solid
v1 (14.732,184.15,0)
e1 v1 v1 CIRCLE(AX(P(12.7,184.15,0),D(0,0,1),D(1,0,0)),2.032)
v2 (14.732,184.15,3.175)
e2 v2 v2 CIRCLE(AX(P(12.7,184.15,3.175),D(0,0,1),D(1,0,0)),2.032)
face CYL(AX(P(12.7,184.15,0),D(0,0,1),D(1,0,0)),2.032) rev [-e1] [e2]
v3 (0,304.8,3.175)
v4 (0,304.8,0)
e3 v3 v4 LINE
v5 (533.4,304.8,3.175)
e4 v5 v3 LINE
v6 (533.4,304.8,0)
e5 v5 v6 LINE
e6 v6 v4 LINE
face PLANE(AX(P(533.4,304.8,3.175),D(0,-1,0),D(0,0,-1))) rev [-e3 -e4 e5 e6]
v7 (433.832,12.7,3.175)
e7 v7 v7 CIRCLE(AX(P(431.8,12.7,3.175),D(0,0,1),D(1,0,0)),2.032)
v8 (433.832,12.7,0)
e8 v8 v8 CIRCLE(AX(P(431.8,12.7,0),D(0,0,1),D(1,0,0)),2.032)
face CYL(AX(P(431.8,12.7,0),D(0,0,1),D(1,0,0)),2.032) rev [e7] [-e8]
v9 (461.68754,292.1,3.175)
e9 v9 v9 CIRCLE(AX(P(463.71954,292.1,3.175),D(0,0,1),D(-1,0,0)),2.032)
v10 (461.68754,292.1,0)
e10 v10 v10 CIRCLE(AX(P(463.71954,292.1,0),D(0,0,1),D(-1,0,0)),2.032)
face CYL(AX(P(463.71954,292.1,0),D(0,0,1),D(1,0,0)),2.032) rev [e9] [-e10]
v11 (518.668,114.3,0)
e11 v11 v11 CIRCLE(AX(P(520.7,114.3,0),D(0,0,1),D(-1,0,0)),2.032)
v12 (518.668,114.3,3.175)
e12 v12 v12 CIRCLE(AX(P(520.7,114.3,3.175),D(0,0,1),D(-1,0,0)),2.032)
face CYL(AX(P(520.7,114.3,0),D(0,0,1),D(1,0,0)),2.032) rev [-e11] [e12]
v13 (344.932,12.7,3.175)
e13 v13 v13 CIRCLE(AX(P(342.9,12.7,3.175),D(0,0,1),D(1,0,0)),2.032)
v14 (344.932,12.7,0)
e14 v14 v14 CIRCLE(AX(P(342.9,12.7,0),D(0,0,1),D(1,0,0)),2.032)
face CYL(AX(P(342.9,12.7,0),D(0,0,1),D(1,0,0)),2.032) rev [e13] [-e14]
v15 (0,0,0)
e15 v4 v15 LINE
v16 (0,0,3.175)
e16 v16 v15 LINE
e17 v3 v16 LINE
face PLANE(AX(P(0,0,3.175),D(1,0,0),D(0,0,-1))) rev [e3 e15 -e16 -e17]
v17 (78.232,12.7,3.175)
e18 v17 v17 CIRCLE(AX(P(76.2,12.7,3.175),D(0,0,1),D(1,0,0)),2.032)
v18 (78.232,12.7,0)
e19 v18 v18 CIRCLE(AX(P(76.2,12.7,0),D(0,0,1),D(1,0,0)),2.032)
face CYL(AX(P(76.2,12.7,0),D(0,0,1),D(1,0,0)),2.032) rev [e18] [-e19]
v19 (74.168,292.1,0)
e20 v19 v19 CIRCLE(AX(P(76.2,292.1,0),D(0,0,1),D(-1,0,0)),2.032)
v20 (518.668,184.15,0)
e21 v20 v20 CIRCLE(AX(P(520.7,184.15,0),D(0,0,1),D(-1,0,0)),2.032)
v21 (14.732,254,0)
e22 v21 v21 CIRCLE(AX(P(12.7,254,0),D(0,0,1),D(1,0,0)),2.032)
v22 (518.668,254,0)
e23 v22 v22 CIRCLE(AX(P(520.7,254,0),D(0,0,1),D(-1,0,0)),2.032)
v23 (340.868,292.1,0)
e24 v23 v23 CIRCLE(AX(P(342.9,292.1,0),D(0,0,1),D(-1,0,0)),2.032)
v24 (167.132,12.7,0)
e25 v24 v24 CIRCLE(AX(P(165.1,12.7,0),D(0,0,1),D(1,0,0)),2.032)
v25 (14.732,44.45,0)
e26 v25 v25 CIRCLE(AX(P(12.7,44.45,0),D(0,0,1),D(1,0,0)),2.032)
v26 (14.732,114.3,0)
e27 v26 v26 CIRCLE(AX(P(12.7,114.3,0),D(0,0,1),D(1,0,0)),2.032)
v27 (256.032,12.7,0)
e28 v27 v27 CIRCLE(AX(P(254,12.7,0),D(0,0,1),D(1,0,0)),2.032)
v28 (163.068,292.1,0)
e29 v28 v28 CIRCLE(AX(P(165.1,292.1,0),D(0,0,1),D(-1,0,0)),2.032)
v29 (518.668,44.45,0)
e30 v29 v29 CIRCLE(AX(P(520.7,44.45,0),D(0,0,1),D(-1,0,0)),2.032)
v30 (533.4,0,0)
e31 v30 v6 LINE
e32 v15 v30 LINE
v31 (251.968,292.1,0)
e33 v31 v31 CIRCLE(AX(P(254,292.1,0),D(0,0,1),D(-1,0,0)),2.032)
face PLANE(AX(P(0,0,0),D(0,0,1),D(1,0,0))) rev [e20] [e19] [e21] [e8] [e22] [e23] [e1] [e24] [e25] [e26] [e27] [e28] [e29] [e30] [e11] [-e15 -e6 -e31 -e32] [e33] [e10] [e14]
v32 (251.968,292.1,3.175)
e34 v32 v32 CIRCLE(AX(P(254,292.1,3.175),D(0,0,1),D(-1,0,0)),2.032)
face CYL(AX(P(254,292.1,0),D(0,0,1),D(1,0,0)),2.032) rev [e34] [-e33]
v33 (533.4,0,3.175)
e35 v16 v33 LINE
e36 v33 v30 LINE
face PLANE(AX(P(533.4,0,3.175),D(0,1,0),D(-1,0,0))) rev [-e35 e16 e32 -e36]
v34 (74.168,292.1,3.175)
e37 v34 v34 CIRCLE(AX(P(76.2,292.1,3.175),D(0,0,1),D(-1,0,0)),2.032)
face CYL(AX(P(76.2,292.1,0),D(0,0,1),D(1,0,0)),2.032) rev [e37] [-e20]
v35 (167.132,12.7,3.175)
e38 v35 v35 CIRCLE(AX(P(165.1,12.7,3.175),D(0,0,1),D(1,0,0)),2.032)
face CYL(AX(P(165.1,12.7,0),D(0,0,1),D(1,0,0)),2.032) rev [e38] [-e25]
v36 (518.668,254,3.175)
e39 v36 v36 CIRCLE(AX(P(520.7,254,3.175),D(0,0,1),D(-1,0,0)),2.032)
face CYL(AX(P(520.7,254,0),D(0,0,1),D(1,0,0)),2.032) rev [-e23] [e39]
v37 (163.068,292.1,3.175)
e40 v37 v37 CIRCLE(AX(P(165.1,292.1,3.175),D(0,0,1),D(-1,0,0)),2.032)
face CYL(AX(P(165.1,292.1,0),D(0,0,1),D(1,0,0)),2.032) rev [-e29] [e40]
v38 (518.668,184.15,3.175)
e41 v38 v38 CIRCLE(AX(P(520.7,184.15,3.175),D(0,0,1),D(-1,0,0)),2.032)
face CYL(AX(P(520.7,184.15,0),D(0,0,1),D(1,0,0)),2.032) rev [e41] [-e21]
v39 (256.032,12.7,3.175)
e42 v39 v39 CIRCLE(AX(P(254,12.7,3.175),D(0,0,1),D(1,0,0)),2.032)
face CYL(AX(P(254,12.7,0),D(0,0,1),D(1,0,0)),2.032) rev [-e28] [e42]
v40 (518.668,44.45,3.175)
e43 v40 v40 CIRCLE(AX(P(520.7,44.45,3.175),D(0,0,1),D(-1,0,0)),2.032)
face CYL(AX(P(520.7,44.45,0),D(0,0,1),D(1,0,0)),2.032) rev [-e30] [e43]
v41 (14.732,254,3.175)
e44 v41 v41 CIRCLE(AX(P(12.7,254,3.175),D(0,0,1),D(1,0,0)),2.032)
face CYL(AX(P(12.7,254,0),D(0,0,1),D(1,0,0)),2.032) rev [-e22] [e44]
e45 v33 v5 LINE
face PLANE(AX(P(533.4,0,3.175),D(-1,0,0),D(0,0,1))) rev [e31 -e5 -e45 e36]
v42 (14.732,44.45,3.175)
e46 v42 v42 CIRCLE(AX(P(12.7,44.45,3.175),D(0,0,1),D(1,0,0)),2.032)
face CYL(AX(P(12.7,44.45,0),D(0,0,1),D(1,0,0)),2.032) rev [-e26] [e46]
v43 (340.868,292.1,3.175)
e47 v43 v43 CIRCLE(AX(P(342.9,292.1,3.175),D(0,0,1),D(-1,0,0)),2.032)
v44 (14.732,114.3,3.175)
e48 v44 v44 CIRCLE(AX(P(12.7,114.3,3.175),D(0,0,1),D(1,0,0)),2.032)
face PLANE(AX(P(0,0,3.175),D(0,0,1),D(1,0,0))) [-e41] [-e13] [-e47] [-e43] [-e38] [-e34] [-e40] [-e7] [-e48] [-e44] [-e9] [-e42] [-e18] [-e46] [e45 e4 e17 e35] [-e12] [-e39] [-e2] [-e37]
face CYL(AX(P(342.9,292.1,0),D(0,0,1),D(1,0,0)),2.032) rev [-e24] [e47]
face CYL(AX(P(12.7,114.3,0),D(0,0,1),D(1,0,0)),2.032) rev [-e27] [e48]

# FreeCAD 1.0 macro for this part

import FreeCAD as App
import Part
import Sketcher

V = App.Vector
Q = App.Units.Quantity

doc = App.newDocument("Part")
body = doc.addObject("PartDesign::Body", "Body")

# Sketch on XY plane
sketch1 = body.newObject("Sketcher::SketchObject", "Sketch")
sketch1.AttachmentSupport = (doc.getObject("XY_Plane"), [""])
sketch1.MapMode = "FlatFace"
sketch1.addGeometry(Part.LineSegment(V(0, 305, 0), V(0, 0, 0)), False)
sketch1.addGeometry(Part.LineSegment(V(0, 0, 0), V(533, 0, 0)), False)
sketch1.addGeometry(Part.LineSegment(V(533, 0, 0), V(533, 305, 0)), False)
sketch1.addGeometry(Part.LineSegment(V(533, 305, 0), V(0, 305, 0)), False)
sketch1.addConstraint(Sketcher.Constraint("Coincident", 0, 2, 1, 1))
sketch1.addConstraint(Sketcher.Constraint("Coincident", 1, 2, 2, 1))
sketch1.addConstraint(Sketcher.Constraint("Coincident", 2, 2, 3, 1))
sketch1.addConstraint(Sketcher.Constraint("Coincident", 3, 2, 0, 1))
sketch1.addConstraint(Sketcher.Constraint("Vertical", 0))
sketch1.addConstraint(Sketcher.Constraint("Horizontal", 1))
sketch1.addConstraint(Sketcher.Constraint("Vertical", 2))
sketch1.addConstraint(Sketcher.Constraint("Horizontal", 3))
sketch1.addConstraint(Sketcher.Constraint("Coincident", 0, 2, -1, 1))
sketch1.addConstraint(Sketcher.Constraint("DistanceX", 1, 1, 1, 2, Q("21 in")))
sketch1.addConstraint(Sketcher.Constraint("DistanceY", 0, 2, 0, 1, Q("12 in")))
pad1 = body.newObject("PartDesign::Pad", "Pad")
pad1.Profile = sketch1
pad1.Length = Q("0.125 in")

# Sketch on XY plane
sketch2 = body.newObject("Sketcher::SketchObject", "Sketch001")
sketch2.AttachmentSupport = (doc.getObject("XY_Plane"), [""])
sketch2.MapMode = "FlatFace"
sketch2.AttachmentOffset = App.Placement(V(0, 0, 0.125 * 25.4), App.Rotation())
sketch2.addGeometry(Part.Circle(V(76.2, 12.7, 0), V(0, 0, 1), 2), False)
sketch2.addGeometry(Part.Circle(V(165.1, 12.7, 0), V(0, 0, 1), 2), False)
sketch2.addGeometry(Part.Circle(V(254, 12.7, 0), V(0, 0, 1), 2), False)
sketch2.addGeometry(Part.Circle(V(342.9, 12.7, 0), V(0, 0, 1), 2), False)
sketch2.addGeometry(Part.Circle(V(431.8, 12.7, 0), V(0, 0, 1), 2), False)
sketch2.addGeometry(Part.Circle(V(342.9, 292.1, 0), V(0, 0, 1), 2), False)
sketch2.addGeometry(Part.Circle(V(254, 292.1, 0), V(0, 0, 1), 2), False)
sketch2.addGeometry(Part.Circle(V(165.1, 292.1, 0), V(0, 0, 1), 2), False)
sketch2.addGeometry(Part.Circle(V(76.2, 292.1, 0), V(0, 0, 1), 2), False)
sketch2.addGeometry(Part.Circle(V(463.7, 292.1, 0), V(0, 0, 1), 2), False)
sketch2.addConstraint(Sketcher.Constraint("Equal", 0, 1))
sketch2.addConstraint(Sketcher.Constraint("Equal", 1, 2))
sketch2.addConstraint(Sketcher.Constraint("Equal", 2, 3))
sketch2.addConstraint(Sketcher.Constraint("Equal", 3, 4))
sketch2.addConstraint(Sketcher.Constraint("Equal", 4, 5))
sketch2.addConstraint(Sketcher.Constraint("Equal", 5, 6))
sketch2.addConstraint(Sketcher.Constraint("Equal", 6, 7))
sketch2.addConstraint(Sketcher.Constraint("Equal", 7, 8))
sketch2.addConstraint(Sketcher.Constraint("Equal", 8, 9))
sketch2.addConstraint(Sketcher.Constraint("Horizontal", 0, 3, 1, 3))
sketch2.addConstraint(Sketcher.Constraint("Horizontal", 1, 3, 2, 3))
sketch2.addConstraint(Sketcher.Constraint("Horizontal", 2, 3, 3, 3))
sketch2.addConstraint(Sketcher.Constraint("Horizontal", 3, 3, 4, 3))
sketch2.addConstraint(Sketcher.Constraint("Horizontal", 5, 3, 6, 3))
sketch2.addConstraint(Sketcher.Constraint("Horizontal", 6, 3, 7, 3))
sketch2.addConstraint(Sketcher.Constraint("Horizontal", 7, 3, 8, 3))
sketch2.addConstraint(Sketcher.Constraint("Horizontal", 8, 3, 9, 3))
sketch2.addConstraint(Sketcher.Constraint("Vertical", 3, 3, 5, 3))
sketch2.addConstraint(Sketcher.Constraint("Vertical", 2, 3, 6, 3))
sketch2.addConstraint(Sketcher.Constraint("Vertical", 1, 3, 7, 3))
sketch2.addConstraint(Sketcher.Constraint("Vertical", 0, 3, 8, 3))
sketch2.addConstraint(Sketcher.Constraint("Diameter", 0, Q("0.16 in")))
sketch2.addConstraint(Sketcher.Constraint("DistanceX", -1, 1, 0, 3, Q("3 in")))
sketch2.addConstraint(Sketcher.Constraint("DistanceX", -1, 1, 2, 3, Q("10 in")))
sketch2.addConstraint(Sketcher.Constraint("DistanceX", -1, 1, 4, 3, Q("17 in")))
sketch2.addConstraint(Sketcher.Constraint("DistanceX", 1, 3, 3, 3, Q("7 in")))
sketch2.addConstraint(Sketcher.Constraint("DistanceY", 3, 3, 5, 3, Q("11 in")))
sketch2.addConstraint(Sketcher.Constraint("DistanceY", -1, 1, 0, 3, Q("0.5 in")))
sketch2.addConstraint(Sketcher.Constraint("DistanceX", -1, 1, 1, 3, Q("6.5 in")))
sketch2.addConstraint(Sketcher.Constraint("DistanceX", -1, 1, 9, 3, Q("463.71954 mm")))
pocket1 = body.newObject("PartDesign::Pocket", "Pocket")
pocket1.Profile = sketch2
pocket1.Type = "ThroughAll"

# Sketch on XY plane
sketch3 = body.newObject("Sketcher::SketchObject", "Sketch002")
sketch3.AttachmentSupport = (doc.getObject("XY_Plane"), [""])
sketch3.MapMode = "FlatFace"
sketch3.AttachmentOffset = App.Placement(V(0, 0, 0.125 * 25.4), App.Rotation())
sketch3.addGeometry(Part.Circle(V(12.7, 254, 0), V(0, 0, 1), 2), False)
sketch3.addGeometry(Part.Circle(V(12.7, 184.2, 0), V(0, 0, 1), 2), False)
sketch3.addGeometry(Part.Circle(V(12.7, 114.3, 0), V(0, 0, 1), 2), False)
sketch3.addGeometry(Part.Circle(V(12.7, 44.5, 0), V(0, 0, 1), 2), False)
sketch3.addGeometry(Part.Circle(V(520.7, 44.5, 0), V(0, 0, 1), 2), False)
sketch3.addGeometry(Part.Circle(V(520.7, 114.3, 0), V(0, 0, 1), 2), False)
sketch3.addGeometry(Part.Circle(V(520.7, 184.2, 0), V(0, 0, 1), 2), False)
sketch3.addGeometry(Part.Circle(V(520.7, 254, 0), V(0, 0, 1), 2), False)
sketch3.addConstraint(Sketcher.Constraint("Equal", 0, 1))
sketch3.addConstraint(Sketcher.Constraint("Equal", 1, 2))
sketch3.addConstraint(Sketcher.Constraint("Equal", 2, 3))
sketch3.addConstraint(Sketcher.Constraint("Equal", 3, 4))
sketch3.addConstraint(Sketcher.Constraint("Equal", 4, 5))
sketch3.addConstraint(Sketcher.Constraint("Equal", 5, 6))
sketch3.addConstraint(Sketcher.Constraint("Equal", 6, 7))
sketch3.addConstraint(Sketcher.Constraint("Horizontal", 3, 3, 4, 3))
sketch3.addConstraint(Sketcher.Constraint("Horizontal", 2, 3, 5, 3))
sketch3.addConstraint(Sketcher.Constraint("Horizontal", 1, 3, 6, 3))
sketch3.addConstraint(Sketcher.Constraint("Horizontal", 0, 3, 7, 3))
sketch3.addConstraint(Sketcher.Constraint("Vertical", 0, 3, 1, 3))
sketch3.addConstraint(Sketcher.Constraint("Vertical", 1, 3, 2, 3))
sketch3.addConstraint(Sketcher.Constraint("Vertical", 2, 3, 3, 3))
sketch3.addConstraint(Sketcher.Constraint("Vertical", 4, 3, 5, 3))
sketch3.addConstraint(Sketcher.Constraint("Vertical", 5, 3, 6, 3))
sketch3.addConstraint(Sketcher.Constraint("Vertical", 6, 3, 7, 3))
sketch3.addConstraint(Sketcher.Constraint("Diameter", 0, Q("0.16 in")))
sketch3.addConstraint(Sketcher.Constraint("DistanceY", -1, 1, 0, 3, Q("10 in")))
sketch3.addConstraint(Sketcher.Constraint("DistanceX", 3, 3, 4, 3, Q("20 in")))
sketch3.addConstraint(Sketcher.Constraint("DistanceX", -1, 1, 0, 3, Q("0.5 in")))
sketch3.addConstraint(Sketcher.Constraint("DistanceY", -1, 1, 2, 3, Q("4.5 in")))
sketch3.addConstraint(Sketcher.Constraint("DistanceY", 3, 3, 1, 3, Q("5.5 in")))
sketch3.addConstraint(Sketcher.Constraint("DistanceY", -1, 1, 1, 3, Q("7.25 in")))
pocket2 = body.newObject("PartDesign::Pocket", "Pocket001")
pocket2.Profile = sketch3
pocket2.Length = Q("0.125 in")

doc.recompute()
